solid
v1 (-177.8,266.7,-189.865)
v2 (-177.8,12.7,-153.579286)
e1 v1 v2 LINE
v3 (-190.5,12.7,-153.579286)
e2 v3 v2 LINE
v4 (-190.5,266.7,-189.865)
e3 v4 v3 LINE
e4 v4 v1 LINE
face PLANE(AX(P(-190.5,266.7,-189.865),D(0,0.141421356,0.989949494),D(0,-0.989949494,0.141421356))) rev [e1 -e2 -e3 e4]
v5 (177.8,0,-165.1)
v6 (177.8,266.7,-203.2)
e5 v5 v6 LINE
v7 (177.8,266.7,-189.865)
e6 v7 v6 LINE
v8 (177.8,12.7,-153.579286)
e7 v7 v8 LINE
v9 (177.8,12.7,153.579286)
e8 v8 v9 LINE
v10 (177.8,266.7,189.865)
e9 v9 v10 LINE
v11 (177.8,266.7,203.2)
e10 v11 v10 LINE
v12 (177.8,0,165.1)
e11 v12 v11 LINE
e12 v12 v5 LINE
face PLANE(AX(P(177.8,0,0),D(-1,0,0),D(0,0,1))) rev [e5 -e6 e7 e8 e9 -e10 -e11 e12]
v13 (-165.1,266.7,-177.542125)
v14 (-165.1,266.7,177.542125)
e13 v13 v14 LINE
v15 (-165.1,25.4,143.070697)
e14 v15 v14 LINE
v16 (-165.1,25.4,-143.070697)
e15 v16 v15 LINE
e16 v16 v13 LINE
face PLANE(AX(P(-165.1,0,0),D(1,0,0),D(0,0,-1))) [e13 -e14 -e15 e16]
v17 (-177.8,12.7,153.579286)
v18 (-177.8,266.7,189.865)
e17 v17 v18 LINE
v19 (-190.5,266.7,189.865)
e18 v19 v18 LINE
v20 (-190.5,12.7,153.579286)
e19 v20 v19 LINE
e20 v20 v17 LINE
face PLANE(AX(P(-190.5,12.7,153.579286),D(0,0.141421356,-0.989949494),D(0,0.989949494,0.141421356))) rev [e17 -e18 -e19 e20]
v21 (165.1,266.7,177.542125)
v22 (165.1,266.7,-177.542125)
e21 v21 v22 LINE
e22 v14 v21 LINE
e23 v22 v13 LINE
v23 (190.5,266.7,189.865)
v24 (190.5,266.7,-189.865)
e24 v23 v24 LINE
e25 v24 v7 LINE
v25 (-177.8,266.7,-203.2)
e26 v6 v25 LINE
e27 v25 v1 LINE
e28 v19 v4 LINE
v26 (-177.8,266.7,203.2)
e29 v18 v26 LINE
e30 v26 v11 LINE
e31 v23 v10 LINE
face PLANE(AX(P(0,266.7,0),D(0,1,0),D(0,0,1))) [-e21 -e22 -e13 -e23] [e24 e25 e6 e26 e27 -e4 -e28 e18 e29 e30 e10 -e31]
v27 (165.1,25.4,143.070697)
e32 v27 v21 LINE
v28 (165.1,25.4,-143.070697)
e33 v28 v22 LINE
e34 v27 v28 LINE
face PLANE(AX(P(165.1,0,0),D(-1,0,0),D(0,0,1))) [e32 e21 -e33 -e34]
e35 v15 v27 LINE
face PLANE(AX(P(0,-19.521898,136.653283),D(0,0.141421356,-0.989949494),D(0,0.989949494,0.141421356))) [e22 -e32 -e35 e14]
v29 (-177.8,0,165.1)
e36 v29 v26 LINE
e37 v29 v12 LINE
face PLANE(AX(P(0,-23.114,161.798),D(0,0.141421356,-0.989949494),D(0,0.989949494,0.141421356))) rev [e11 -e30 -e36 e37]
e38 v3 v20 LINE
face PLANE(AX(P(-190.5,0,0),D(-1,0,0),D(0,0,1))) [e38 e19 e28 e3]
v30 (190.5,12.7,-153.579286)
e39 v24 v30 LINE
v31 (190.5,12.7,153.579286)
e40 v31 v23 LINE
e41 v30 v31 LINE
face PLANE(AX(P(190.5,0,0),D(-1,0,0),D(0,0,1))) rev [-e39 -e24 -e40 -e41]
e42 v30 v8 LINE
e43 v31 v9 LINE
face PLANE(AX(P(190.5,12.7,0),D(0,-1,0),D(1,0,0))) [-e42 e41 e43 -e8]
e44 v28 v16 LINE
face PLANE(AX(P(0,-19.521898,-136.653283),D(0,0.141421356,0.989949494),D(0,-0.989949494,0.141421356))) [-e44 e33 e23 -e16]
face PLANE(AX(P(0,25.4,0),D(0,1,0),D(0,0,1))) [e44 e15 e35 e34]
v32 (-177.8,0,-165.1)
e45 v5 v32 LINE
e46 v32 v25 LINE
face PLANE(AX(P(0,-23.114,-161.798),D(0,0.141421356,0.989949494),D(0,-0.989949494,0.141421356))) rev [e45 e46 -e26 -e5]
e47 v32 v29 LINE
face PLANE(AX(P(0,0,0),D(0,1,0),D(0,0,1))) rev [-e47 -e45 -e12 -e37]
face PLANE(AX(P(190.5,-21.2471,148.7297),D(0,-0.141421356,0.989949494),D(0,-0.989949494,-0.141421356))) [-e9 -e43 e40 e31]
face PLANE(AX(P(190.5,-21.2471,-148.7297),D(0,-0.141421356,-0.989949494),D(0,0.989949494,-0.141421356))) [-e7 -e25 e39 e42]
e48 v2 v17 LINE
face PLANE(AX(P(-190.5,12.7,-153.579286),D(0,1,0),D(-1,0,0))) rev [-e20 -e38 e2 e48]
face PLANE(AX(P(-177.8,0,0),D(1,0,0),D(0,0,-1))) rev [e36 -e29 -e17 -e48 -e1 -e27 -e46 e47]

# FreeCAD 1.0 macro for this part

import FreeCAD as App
import Part
import Sketcher

V = App.Vector
Q = App.Units.Quantity


def faces_at(feature, points):
    """Names of the faces that lie closest to the given points."""
    faces = feature.Shape.Faces
    near = lambda p: min(range(len(faces)), key=lambda i: faces[i].distToShape(Part.Vertex(*p))[0])
    return sorted({f"Face{near(p) + 1}" for p in points})

doc = App.newDocument("Part")
body = doc.addObject("PartDesign::Body", "Body")

sketch1 = body.newObject("Sketcher::SketchObject", "Sketch")
sketch1.AttachmentSupport = (doc.getObject("XZ_Plane"), [""])
sketch1.MapMode = "FlatFace"
sketch1.addGeometry(Part.LineSegment(V(178, -165, 0), V(-178, -165, 0)), False)
sketch1.addGeometry(Part.LineSegment(V(-178, -165, 0), V(-178, 165, 0)), False)
sketch1.addGeometry(Part.LineSegment(V(-178, 165, 0), V(178, 165, 0)), False)
sketch1.addGeometry(Part.LineSegment(V(178, 165, 0), V(178, -165, 0)), False)
sketch1.addConstraint(Sketcher.Constraint("Coincident", 0, 2, 1, 1))
sketch1.addConstraint(Sketcher.Constraint("Coincident", 1, 2, 2, 1))
sketch1.addConstraint(Sketcher.Constraint("Coincident", 2, 2, 3, 1))
sketch1.addConstraint(Sketcher.Constraint("Coincident", 3, 2, 0, 1))
sketch1.addConstraint(Sketcher.Constraint("Horizontal", 0))
sketch1.addConstraint(Sketcher.Constraint("Vertical", 1))
sketch1.addConstraint(Sketcher.Constraint("Horizontal", 2))
sketch1.addConstraint(Sketcher.Constraint("Vertical", 3))
sketch1.addConstraint(Sketcher.Constraint("Symmetric", 0, 2, 2, 2, -1, 1))
sketch1.addConstraint(Sketcher.Constraint("DistanceX", 0, 2, 0, 1, Q("14 in")))
sketch1.addConstraint(Sketcher.Constraint("DistanceY", 1, 1, 1, 2, Q("13 in")))

sketch2 = body.newObject("Sketcher::SketchObject", "Sketch001")
sketch2.AttachmentSupport = (doc.getObject("XZ_Plane"), [""])
sketch2.MapMode = "FlatFace"
sketch2.AttachmentOffset = App.Placement(V(0, 0, -10.5 * 25.4), App.Rotation())
sketch2.addGeometry(Part.LineSegment(V(178, -203, 0), V(-178, -203, 0)), False)
sketch2.addGeometry(Part.LineSegment(V(-178, -203, 0), V(-178, 203, 0)), False)
sketch2.addGeometry(Part.LineSegment(V(-178, 203, 0), V(178, 203, 0)), False)
sketch2.addGeometry(Part.LineSegment(V(178, 203, 0), V(178, -203, 0)), False)
sketch2.addConstraint(Sketcher.Constraint("Coincident", 0, 2, 1, 1))
sketch2.addConstraint(Sketcher.Constraint("Coincident", 1, 2, 2, 1))
sketch2.addConstraint(Sketcher.Constraint("Coincident", 2, 2, 3, 1))
sketch2.addConstraint(Sketcher.Constraint("Coincident", 3, 2, 0, 1))
sketch2.addConstraint(Sketcher.Constraint("Horizontal", 0))
sketch2.addConstraint(Sketcher.Constraint("Vertical", 1))
sketch2.addConstraint(Sketcher.Constraint("Horizontal", 2))
sketch2.addConstraint(Sketcher.Constraint("Vertical", 3))
sketch2.addConstraint(Sketcher.Constraint("Symmetric", 0, 2, 2, 2, -1, 1))
sketch2.addConstraint(Sketcher.Constraint("DistanceX", 0, 2, 0, 1, Q("14 in")))
sketch2.addConstraint(Sketcher.Constraint("DistanceY", 1, 1, 1, 2, Q("16 in")))

additiveloft = body.newObject("PartDesign::AdditiveLoft", "AdditiveLoft")
additiveloft.Profile = sketch1
additiveloft.Sections = [sketch2]
doc.recompute()

thickness = body.newObject("PartDesign::Thickness", "Thickness")
thickness.Base = (additiveloft, faces_at(additiveloft, [(0, 266.7, 0)]))
thickness.Value = Q("1 in")
thickness.Reversed = True
thickness.Join = "Intersection"

sketch3 = body.newObject("Sketcher::SketchObject", "Sketch002")
sketch3.AttachmentSupport = (doc.getObject("YZ_Plane"), [""])
sketch3.MapMode = "FlatFace"
sketch3.AttachmentOffset = App.Placement(V(0, 0, -6 * 25.4), App.Rotation())
sketch3.addGeometry(Part.LineSegment(V(25, -143, 0), V(25, 143, 0)), False)
sketch3.addGeometry(Part.LineSegment(V(25, 143, 0), V(267, 178, 0)), False)
sketch3.addGeometry(Part.LineSegment(V(267, 178, 0), V(267, -178, 0)), False)
sketch3.addGeometry(Part.LineSegment(V(267, -178, 0), V(25, -143, 0)), False)
sketch3.addConstraint(Sketcher.Constraint("Coincident", 0, 2, 1, 1))
sketch3.addConstraint(Sketcher.Constraint("Coincident", 1, 2, 2, 1))
sketch3.addConstraint(Sketcher.Constraint("Coincident", 2, 2, 3, 1))
sketch3.addConstraint(Sketcher.Constraint("Coincident", 3, 2, 0, 1))
sketch3.addConstraint(Sketcher.Constraint("Vertical", 0))
sketch3.addConstraint(Sketcher.Constraint("Vertical", 2))
sketch3.addConstraint(Sketcher.Constraint("Equal", 1, 3))
sketch3.addConstraint(Sketcher.Constraint("DistanceX", -1, 1, 0, 2, Q("1 in")))
sketch3.addConstraint(Sketcher.Constraint("DistanceX", -1, 1, 1, 2, Q("10.5 in")))
sketch3.addConstraint(Sketcher.Constraint("DistanceY", 2, 2, 2, 1, 355.084251))
sketch3.addConstraint(Sketcher.Constraint("Distance", 1, 243.749809))
sketch3.addConstraint(Sketcher.Constraint("DistanceY", -1, 1, 0, 2, 143.070697))
pocket1 = body.newObject("PartDesign::Pocket", "Pocket")
pocket1.Profile = sketch3
pocket1.Length = Q("0.5 in")

sketch4 = body.newObject("Sketcher::SketchObject", "Sketch003")
sketch4.AttachmentSupport = (doc.getObject("YZ_Plane"), [""])
sketch4.MapMode = "FlatFace"
sketch4.AttachmentOffset = App.Placement(V(0, 0, 6 * 25.4), App.Rotation())
sketch4.addGeometry(Part.LineSegment(V(267, -178, 0), V(267, 178, 0)), False)
sketch4.addGeometry(Part.LineSegment(V(267, 178, 0), V(25, 143, 0)), False)
sketch4.addGeometry(Part.LineSegment(V(25, 143, 0), V(25, -143, 0)), False)
sketch4.addGeometry(Part.LineSegment(V(25, -143, 0), V(267, -178, 0)), False)
sketch4.addConstraint(Sketcher.Constraint("Coincident", 0, 2, 1, 1))
sketch4.addConstraint(Sketcher.Constraint("Coincident", 1, 2, 2, 1))
sketch4.addConstraint(Sketcher.Constraint("Coincident", 2, 2, 3, 1))
sketch4.addConstraint(Sketcher.Constraint("Coincident", 3, 2, 0, 1))
sketch4.addConstraint(Sketcher.Constraint("Vertical", 0))
sketch4.addConstraint(Sketcher.Constraint("Vertical", 2))
sketch4.addConstraint(Sketcher.Constraint("Equal", 1, 3))
sketch4.addConstraint(Sketcher.Constraint("DistanceX", -1, 1, 1, 2, Q("1 in")))
sketch4.addConstraint(Sketcher.Constraint("DistanceX", -1, 1, 0, 2, Q("10.5 in")))
sketch4.addConstraint(Sketcher.Constraint("DistanceY", 0, 1, 0, 2, 355.084251))
sketch4.addConstraint(Sketcher.Constraint("Distance", 1, 243.749809))
sketch4.addConstraint(Sketcher.Constraint("DistanceY", -1, 1, 0, 2, 177.542125))
pocket2 = body.newObject("PartDesign::Pocket", "Pocket001")
pocket2.Profile = sketch4
pocket2.Length = Q("0.5 in")
pocket2.Reversed = True

sketch5 = body.newObject("Sketcher::SketchObject", "Sketch004")
sketch5.AttachmentSupport = (doc.getObject("YZ_Plane"), [""])
sketch5.MapMode = "FlatFace"
sketch5.AttachmentOffset = App.Placement(V(0, 0, 6.5 * 25.4), App.Rotation())
sketch5.addGeometry(Part.LineSegment(V(13, -154, 0), V(267, -190, 0)), False)
sketch5.addGeometry(Part.LineSegment(V(267, -190, 0), V(267, 190, 0)), False)
sketch5.addGeometry(Part.LineSegment(V(267, 190, 0), V(13, 154, 0)), False)
sketch5.addGeometry(Part.LineSegment(V(13, 154, 0), V(13, -154, 0)), False)
sketch5.addConstraint(Sketcher.Constraint("Coincident", 0, 2, 1, 1))
sketch5.addConstraint(Sketcher.Constraint("Coincident", 1, 2, 2, 1))
sketch5.addConstraint(Sketcher.Constraint("Coincident", 2, 2, 3, 1))
sketch5.addConstraint(Sketcher.Constraint("Coincident", 3, 2, 0, 1))
sketch5.addConstraint(Sketcher.Constraint("Vertical", 1))
sketch5.addConstraint(Sketcher.Constraint("Vertical", 3))
sketch5.addConstraint(Sketcher.Constraint("Equal", 0, 2))
sketch5.addConstraint(Sketcher.Constraint("DistanceX", 2, 2, 1, 2, Q("10 in")))
sketch5.addConstraint(Sketcher.Constraint("DistanceY", 1, 1, 1, 2, Q("14.95 in")))
sketch5.addConstraint(Sketcher.Constraint("DistanceX", -1, 1, 0, 2, Q("10.5 in")))
sketch5.addConstraint(Sketcher.Constraint("DistanceY", 0, 2, -1, 1, Q("7.475 in")))
sketch5.addConstraint(Sketcher.Constraint("DistanceY", 3, 2, 3, 1, 307.158571))
pad1 = body.newObject("PartDesign::Pad", "Pad")
pad1.Profile = sketch5
pad1.Length = Q("1 in")

sketch6 = body.newObject("Sketcher::SketchObject", "Sketch005")
sketch6.AttachmentSupport = (doc.getObject("YZ_Plane"), [""])
sketch6.MapMode = "FlatFace"
sketch6.AttachmentOffset = App.Placement(V(0, 0, -7 * 25.4), App.Rotation())
sketch6.addGeometry(Part.LineSegment(V(13, -154, 0), V(13, 154, 0)), False)
sketch6.addGeometry(Part.LineSegment(V(13, 154, 0), V(267, 190, 0)), False)
sketch6.addGeometry(Part.LineSegment(V(267, 190, 0), V(267, -190, 0)), False)
sketch6.addGeometry(Part.LineSegment(V(267, -190, 0), V(13, -154, 0)), False)
sketch6.addConstraint(Sketcher.Constraint("Coincident", 0, 2, 1, 1))
sketch6.addConstraint(Sketcher.Constraint("Coincident", 1, 2, 2, 1))
sketch6.addConstraint(Sketcher.Constraint("Coincident", 2, 2, 3, 1))
sketch6.addConstraint(Sketcher.Constraint("Coincident", 3, 2, 0, 1))
sketch6.addConstraint(Sketcher.Constraint("Vertical", 0))
sketch6.addConstraint(Sketcher.Constraint("Vertical", 2))
sketch6.addConstraint(Sketcher.Constraint("Equal", 1, 3))
sketch6.addConstraint(Sketcher.Constraint("DistanceX", 0, 2, 1, 2, Q("10 in")))
sketch6.addConstraint(Sketcher.Constraint("DistanceY", 2, 2, 2, 1, Q("14.95 in")))
sketch6.addConstraint(Sketcher.Constraint("DistanceX", -1, 1, 0, 2, Q("0.5 in")))
sketch6.addConstraint(Sketcher.Constraint("DistanceY", -1, 1, 1, 2, Q("7.475 in")))
sketch6.addConstraint(Sketcher.Constraint("DistanceY", 0, 1, 0, 2, 307.158571))
pad2 = body.newObject("PartDesign::Pad", "Pad001")
pad2.Profile = sketch6
pad2.Length = Q("0.5 in")
pad2.Reversed = True

doc.recompute()
